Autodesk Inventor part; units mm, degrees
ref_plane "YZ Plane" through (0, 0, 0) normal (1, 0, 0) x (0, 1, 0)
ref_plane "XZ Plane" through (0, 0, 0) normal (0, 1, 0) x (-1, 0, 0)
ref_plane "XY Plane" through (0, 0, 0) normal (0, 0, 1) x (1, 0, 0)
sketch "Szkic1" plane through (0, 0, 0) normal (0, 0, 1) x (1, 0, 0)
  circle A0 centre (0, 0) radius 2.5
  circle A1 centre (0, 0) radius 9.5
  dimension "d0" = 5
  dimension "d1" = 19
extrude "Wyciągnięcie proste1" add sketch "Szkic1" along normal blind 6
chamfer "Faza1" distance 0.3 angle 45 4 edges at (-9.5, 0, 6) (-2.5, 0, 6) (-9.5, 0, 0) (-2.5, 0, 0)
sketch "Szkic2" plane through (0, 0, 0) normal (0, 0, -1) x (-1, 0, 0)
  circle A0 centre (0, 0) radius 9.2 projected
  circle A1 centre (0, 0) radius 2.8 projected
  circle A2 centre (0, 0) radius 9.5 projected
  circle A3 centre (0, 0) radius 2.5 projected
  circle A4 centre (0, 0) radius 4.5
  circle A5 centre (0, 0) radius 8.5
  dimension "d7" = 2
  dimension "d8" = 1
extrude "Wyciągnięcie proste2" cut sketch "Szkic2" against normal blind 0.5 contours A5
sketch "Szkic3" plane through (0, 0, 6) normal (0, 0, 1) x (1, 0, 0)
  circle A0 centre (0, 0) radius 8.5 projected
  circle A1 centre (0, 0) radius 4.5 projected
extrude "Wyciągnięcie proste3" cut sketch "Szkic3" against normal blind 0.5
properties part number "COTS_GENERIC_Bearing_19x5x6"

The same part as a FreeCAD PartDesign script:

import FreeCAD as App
import Part
import Sketcher
from FreeCAD import Vector
Q = App.Units.Quantity


def edges_at(feature, points):
    """Names of the edges that pass closest to the given points."""
    edges = feature.Shape.Edges
    near = lambda p: min(range(len(edges)), key=lambda i: edges[i].distToShape(Part.Vertex(*p))[0])
    return sorted({f"Edge{near(p) + 1}" for p in points})

doc = App.newDocument("Part")
body = doc.addObject("PartDesign::Body", "Body")

# Sketch on XY plane
sketch1 = body.newObject("Sketcher::SketchObject", "Sketch")
sketch1.AttachmentSupport = (doc.getObject("XY_Plane"), [""])
sketch1.MapMode = "FlatFace"
sketch1.addGeometry(Part.Circle(Vector(0, 0, 0), Vector(0, 0, 1), 9.5), False)
sketch1.addGeometry(Part.Circle(Vector(0, 0, 0), Vector(0, 0, 1), 2.5), False)
sketch1.addConstraint(Sketcher.Constraint("Coincident", 0, 3, -1, 1))
sketch1.addConstraint(Sketcher.Constraint("Coincident", 1, 3, -1, 1))
sketch1.addConstraint(Sketcher.Constraint("Diameter", 0, Q("19 mm")))
sketch1.addConstraint(Sketcher.Constraint("Diameter", 1, Q("5 mm")))
pad1 = body.newObject("PartDesign::Pad", "Pad")
pad1.Profile = sketch1
pad1.Length = 6
doc.recompute()

chamfer = body.newObject("PartDesign::Chamfer", "Chamfer")
chamfer.Base = (pad1, edges_at(pad1, [
    (-9.5, 0, 6),
    (-2.5, 0, 6),
    (-9.5, 0, 0),
    (-2.5, 0, 0),
]))
chamfer.Size = 0.3

# Sketch on XY plane
sketch2 = body.newObject("Sketcher::SketchObject", "Sketch001")
sketch2.AttachmentSupport = (doc.getObject("XY_Plane"), [""])
sketch2.MapMode = "FlatFace"
sketch2.addGeometry(Part.Circle(Vector(0, 0, 0), Vector(0, 0, 1), 8.5), False)
sketch2.addGeometry(Part.Circle(Vector(0, 0, 0), Vector(0, 0, 1), 4.5), False)
sketch2.addConstraint(Sketcher.Constraint("Coincident", 0, 3, -1, 1))
sketch2.addConstraint(Sketcher.Constraint("Coincident", 1, 3, -1, 1))
sketch2.addConstraint(Sketcher.Constraint("Diameter", 0, Q("17 mm")))
sketch2.addConstraint(Sketcher.Constraint("Diameter", 1, Q("9 mm")))
pocket1 = body.newObject("PartDesign::Pocket", "Pocket")
pocket1.Profile = sketch2
pocket1.Length = 0.5
pocket1.Reversed = True

# Sketch on XY plane
sketch3 = body.newObject("Sketcher::SketchObject", "Sketch002")
sketch3.AttachmentSupport = (doc.getObject("XY_Plane"), [""])
sketch3.MapMode = "FlatFace"
sketch3.AttachmentOffset = App.Placement(Vector(0, 0, 6), App.Rotation())
sketch3.addGeometry(Part.Circle(Vector(0, 0, 0), Vector(0, 0, 1), 8.5), False)
sketch3.addGeometry(Part.Circle(Vector(0, 0, 0), Vector(0, 0, 1), 4.5), False)
sketch3.addConstraint(Sketcher.Constraint("Coincident", 0, 3, -1, 1))
sketch3.addConstraint(Sketcher.Constraint("Coincident", 1, 3, -1, 1))
sketch3.addConstraint(Sketcher.Constraint("Diameter", 0, Q("17 mm")))
sketch3.addConstraint(Sketcher.Constraint("Diameter", 1, Q("9 mm")))
pocket2 = body.newObject("PartDesign::Pocket", "Pocket001")
pocket2.Profile = sketch3
pocket2.Length = 0.5

doc.recompute()
